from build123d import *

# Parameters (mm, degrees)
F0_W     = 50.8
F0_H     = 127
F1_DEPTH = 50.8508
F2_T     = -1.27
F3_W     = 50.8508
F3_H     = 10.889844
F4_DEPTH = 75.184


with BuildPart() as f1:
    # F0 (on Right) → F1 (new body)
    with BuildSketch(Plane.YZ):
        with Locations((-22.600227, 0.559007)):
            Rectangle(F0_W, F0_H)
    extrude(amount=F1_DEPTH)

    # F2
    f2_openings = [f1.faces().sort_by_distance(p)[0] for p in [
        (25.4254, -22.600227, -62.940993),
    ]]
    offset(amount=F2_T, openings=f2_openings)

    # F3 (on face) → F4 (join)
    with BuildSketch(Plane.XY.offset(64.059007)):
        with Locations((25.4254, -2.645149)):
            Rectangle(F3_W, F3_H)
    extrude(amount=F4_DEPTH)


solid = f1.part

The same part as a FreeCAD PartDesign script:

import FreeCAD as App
import Part
import Sketcher

V = App.Vector
Q = App.Units.Quantity


def faces_at(feature, points):
    """Names of the faces that lie closest to the given points."""
    faces = feature.Shape.Faces
    near = lambda p: min(range(len(faces)), key=lambda i: faces[i].distToShape(Part.Vertex(*p))[0])
    return sorted({f"Face{near(p) + 1}" for p in points})

doc = App.newDocument("Part")
body = doc.addObject("PartDesign::Body", "Body")

# Sketch on YZ plane
sketch1 = doc.addObject("Sketcher::SketchObject", "Sketch")
body.addObject(sketch1)
sketch1.AttachmentSupport = (doc.YZ_Plane, [""])
sketch1.MapMode = "FlatFace"
sketch1.addGeometry([
    Part.LineSegment(V(-48, 64, 0), V(-48, -63, 0)),
    Part.LineSegment(V(-48, -63, 0), V(3, -63, 0)),
    Part.LineSegment(V(3, -63, 0), V(3, 64, 0)),
    Part.LineSegment(V(3, 64, 0), V(-48, 64, 0)),
], False)
sketch1.addConstraint([
    Sketcher.Constraint("Coincident", 0, 2, 1, 1),
    Sketcher.Constraint("Coincident", 1, 2, 2, 1),
    Sketcher.Constraint("Coincident", 2, 2, 3, 1),
    Sketcher.Constraint("Coincident", 3, 2, 0, 1),
    Sketcher.Constraint("Vertical", 0),
    Sketcher.Constraint("Horizontal", 1),
    Sketcher.Constraint("Vertical", 2),
    Sketcher.Constraint("Horizontal", 3),
    Sketcher.Constraint("DistanceX", 1, 1, 1, 2, Q("2 in")),
    Sketcher.Constraint("DistanceY", 0, 2, 0, 1, Q("5 in")),
    Sketcher.Constraint("DistanceX", 0, 2, -1, 1, 48.000227),
    Sketcher.Constraint("DistanceY", 0, 2, -1, 1, 62.940993),
])
pad1 = doc.addObject("PartDesign::Pad", "Pad")
body.addObject(pad1)
pad1.Profile = sketch1
pad1.Length = Q("2.002 in")
doc.recompute()

thickness = doc.addObject("PartDesign::Thickness", "Thickness")
body.addObject(thickness)
thickness.Base = (pad1, faces_at(pad1, [(25.425, -22.6, -62.941)]))
thickness.Value = Q("0.05 in")
thickness.Reversed = True
thickness.Join = "Arc"

# Sketch on XY plane
sketch2 = doc.addObject("Sketcher::SketchObject", "Sketch001")
body.addObject(sketch2)
sketch2.AttachmentSupport = (doc.XY_Plane, [""])
sketch2.MapMode = "FlatFace"
sketch2.AttachmentOffset = App.Placement(V(0, 0, 64.059007), App.Rotation())
sketch2.addGeometry([
    Part.LineSegment(V(0, 3, 0), V(0, -8, 0)),
    Part.LineSegment(V(0, -8, 0), V(51, -8, 0)),
    Part.LineSegment(V(51, -8, 0), V(51, 3, 0)),
    Part.LineSegment(V(51, 3, 0), V(0, 3, 0)),
], False)
sketch2.addConstraint([
    Sketcher.Constraint("Coincident", 0, 2, 1, 1),
    Sketcher.Constraint("Coincident", 1, 2, 2, 1),
    Sketcher.Constraint("Coincident", 2, 2, 3, 1),
    Sketcher.Constraint("Coincident", 3, 2, 0, 1),
    Sketcher.Constraint("Vertical", 0),
    Sketcher.Constraint("Horizontal", 1),
    Sketcher.Constraint("Vertical", 2),
    Sketcher.Constraint("Horizontal", 3),
    Sketcher.Constraint("PointOnObject", 0, 2, -2),
    Sketcher.Constraint("DistanceX", 1, 1, 1, 2, Q("2.002 in")),
    Sketcher.Constraint("DistanceY", 0, 2, 0, 1, 10.889844),
    Sketcher.Constraint("DistanceY", 0, 2, -1, 1, 8.090071),
])
pad2 = doc.addObject("PartDesign::Pad", "Pad001")
body.addObject(pad2)
pad2.Profile = sketch2
pad2.Length = Q("2.96 in")

doc.recompute()
